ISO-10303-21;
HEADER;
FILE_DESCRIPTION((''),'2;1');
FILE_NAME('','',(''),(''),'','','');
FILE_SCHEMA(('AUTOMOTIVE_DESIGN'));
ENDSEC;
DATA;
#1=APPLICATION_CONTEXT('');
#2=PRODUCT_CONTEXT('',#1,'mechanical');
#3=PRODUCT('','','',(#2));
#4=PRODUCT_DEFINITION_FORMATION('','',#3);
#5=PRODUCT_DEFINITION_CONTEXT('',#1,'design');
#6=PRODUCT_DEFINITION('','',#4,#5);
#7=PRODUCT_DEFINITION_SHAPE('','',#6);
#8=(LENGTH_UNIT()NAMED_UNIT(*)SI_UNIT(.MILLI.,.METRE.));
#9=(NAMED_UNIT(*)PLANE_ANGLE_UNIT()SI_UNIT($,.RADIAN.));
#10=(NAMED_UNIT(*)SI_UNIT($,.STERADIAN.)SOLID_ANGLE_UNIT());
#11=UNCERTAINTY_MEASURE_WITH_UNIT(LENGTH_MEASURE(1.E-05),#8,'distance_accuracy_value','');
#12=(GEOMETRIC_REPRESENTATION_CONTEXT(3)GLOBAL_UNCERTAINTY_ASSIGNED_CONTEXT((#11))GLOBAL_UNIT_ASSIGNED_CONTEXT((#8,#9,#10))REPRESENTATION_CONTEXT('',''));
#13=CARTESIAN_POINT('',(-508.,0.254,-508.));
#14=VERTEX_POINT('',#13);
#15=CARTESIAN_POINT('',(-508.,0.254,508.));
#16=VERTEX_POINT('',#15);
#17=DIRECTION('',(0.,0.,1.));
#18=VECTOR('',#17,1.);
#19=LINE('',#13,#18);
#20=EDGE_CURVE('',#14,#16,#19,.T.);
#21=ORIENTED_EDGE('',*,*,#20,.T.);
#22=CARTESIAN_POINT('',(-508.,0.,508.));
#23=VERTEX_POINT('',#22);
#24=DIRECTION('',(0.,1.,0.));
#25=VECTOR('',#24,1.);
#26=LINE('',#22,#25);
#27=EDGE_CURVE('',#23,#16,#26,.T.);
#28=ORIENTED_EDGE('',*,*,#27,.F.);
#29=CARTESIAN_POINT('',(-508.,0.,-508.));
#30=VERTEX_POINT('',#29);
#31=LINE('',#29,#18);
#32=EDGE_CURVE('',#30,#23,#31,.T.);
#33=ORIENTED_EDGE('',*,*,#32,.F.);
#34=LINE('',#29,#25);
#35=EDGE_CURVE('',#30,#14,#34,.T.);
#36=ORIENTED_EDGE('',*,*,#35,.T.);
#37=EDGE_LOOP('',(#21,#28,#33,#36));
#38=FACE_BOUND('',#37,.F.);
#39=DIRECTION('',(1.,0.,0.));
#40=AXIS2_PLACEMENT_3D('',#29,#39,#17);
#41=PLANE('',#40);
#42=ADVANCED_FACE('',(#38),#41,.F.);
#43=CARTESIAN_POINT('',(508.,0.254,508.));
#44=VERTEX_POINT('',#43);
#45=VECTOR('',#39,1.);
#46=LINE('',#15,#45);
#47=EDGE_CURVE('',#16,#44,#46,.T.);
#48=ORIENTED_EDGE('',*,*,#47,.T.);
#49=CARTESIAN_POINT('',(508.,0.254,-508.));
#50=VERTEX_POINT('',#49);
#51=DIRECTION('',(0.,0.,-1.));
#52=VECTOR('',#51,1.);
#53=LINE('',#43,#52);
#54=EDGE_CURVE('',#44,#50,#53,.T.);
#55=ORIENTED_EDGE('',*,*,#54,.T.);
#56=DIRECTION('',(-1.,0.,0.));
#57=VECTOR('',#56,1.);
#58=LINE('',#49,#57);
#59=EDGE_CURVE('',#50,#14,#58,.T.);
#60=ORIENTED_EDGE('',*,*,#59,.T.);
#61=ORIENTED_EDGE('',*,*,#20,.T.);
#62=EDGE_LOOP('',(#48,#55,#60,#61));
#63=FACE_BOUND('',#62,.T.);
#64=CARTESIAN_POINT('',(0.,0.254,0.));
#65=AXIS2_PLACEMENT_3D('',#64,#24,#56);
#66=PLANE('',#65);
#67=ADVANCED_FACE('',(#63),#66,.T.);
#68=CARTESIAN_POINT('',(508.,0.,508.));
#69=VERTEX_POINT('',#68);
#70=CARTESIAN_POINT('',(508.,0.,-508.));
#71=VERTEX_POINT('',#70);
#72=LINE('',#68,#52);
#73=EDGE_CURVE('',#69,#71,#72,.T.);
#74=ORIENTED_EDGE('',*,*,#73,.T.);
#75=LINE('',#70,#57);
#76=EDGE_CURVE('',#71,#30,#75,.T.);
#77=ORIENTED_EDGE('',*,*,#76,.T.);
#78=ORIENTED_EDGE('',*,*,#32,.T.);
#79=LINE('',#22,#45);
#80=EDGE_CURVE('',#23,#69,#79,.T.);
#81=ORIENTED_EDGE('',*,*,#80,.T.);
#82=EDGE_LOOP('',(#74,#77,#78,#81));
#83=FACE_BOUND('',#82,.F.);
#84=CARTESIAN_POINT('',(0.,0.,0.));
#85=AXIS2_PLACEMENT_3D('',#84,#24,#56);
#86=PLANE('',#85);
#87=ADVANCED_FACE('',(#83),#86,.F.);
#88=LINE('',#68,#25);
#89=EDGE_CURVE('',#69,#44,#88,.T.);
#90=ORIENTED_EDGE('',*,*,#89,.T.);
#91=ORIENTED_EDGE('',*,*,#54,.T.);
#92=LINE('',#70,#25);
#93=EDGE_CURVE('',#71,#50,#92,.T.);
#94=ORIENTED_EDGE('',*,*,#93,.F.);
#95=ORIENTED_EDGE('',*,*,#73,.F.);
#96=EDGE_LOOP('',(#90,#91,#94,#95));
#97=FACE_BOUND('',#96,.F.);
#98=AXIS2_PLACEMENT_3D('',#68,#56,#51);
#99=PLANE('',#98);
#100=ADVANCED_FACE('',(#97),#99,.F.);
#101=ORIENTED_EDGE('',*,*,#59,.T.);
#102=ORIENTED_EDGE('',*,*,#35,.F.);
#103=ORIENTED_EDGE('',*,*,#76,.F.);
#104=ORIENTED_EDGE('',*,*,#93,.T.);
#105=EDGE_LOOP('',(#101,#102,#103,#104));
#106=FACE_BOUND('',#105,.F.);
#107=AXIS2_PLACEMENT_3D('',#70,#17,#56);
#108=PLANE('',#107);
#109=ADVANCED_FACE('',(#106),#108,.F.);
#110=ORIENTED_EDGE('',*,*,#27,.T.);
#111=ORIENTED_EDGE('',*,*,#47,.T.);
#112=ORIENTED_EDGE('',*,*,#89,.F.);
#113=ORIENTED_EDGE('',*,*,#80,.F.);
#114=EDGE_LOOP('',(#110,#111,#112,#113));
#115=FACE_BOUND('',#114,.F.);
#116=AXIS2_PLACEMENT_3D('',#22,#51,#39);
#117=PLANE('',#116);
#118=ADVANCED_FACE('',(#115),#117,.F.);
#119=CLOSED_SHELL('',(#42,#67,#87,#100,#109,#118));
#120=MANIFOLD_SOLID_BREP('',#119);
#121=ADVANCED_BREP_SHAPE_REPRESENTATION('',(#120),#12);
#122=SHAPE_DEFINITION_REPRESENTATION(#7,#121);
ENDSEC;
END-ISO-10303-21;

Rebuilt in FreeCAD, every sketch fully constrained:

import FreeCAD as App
import Part
import Sketcher
from FreeCAD import Vector
Q = App.Units.Quantity

doc = App.newDocument("Part")
params = doc.addObject("Spreadsheet::Sheet", "Params")
for row, (alias, value) in enumerate([
    ("sketch1_width", "40 in"),
    ("pad1_length", "0.01 in"),
], start=1):
    params.set(f"A{row}", alias)
    params.set(f"B{row}", "=" + value)
    params.setAlias(f"B{row}", alias)

body = doc.addObject("PartDesign::Body", "Body")

# Sketch on XZ plane
sketch1 = doc.addObject("Sketcher::SketchObject", "Sketch")
body.addObject(sketch1)
sketch1.AttachmentSupport = (doc.XZ_Plane, [""])
sketch1.MapMode = "FlatFace"
sketch1.addGeometry(Part.LineSegment(Vector(-508, -508, 0), Vector(-508, 508, 0)), False)
sketch1.addGeometry(Part.LineSegment(Vector(-508, 508, 0), Vector(508, 508, 0)), False)
sketch1.addGeometry(Part.LineSegment(Vector(508, 508, 0), Vector(508, -508, 0)), False)
sketch1.addGeometry(Part.LineSegment(Vector(508, -508, 0), Vector(-508, -508, 0)), False)
sketch1.addConstraint(Sketcher.Constraint("Coincident", 0, 2, 1, 1))
sketch1.addConstraint(Sketcher.Constraint("Coincident", 1, 2, 2, 1))
sketch1.addConstraint(Sketcher.Constraint("Coincident", 2, 2, 3, 1))
sketch1.addConstraint(Sketcher.Constraint("Coincident", 3, 2, 0, 1))
sketch1.addConstraint(Sketcher.Constraint("Vertical", 0))
sketch1.addConstraint(Sketcher.Constraint("Horizontal", 1))
sketch1.addConstraint(Sketcher.Constraint("Vertical", 2))
sketch1.addConstraint(Sketcher.Constraint("Horizontal", 3))
sketch1.addConstraint(Sketcher.Constraint("Symmetric", 0, 2, 2, 2, -1, 1))
sketch1.addConstraint(Sketcher.Constraint("Equal", 3, 0))
sketch1.addConstraint(Sketcher.Constraint("DistanceX", 1, 1, 1, 2, Q("40 in")))
sketch1.setExpression("Constraints[10]", "Params.sketch1_width")
pad1 = doc.addObject("PartDesign::Pad", "Pad")
body.addObject(pad1)
pad1.Profile = sketch1
pad1.setExpression("Length", "Params.pad1_length")
pad1.Reversed = True

doc.recompute()
